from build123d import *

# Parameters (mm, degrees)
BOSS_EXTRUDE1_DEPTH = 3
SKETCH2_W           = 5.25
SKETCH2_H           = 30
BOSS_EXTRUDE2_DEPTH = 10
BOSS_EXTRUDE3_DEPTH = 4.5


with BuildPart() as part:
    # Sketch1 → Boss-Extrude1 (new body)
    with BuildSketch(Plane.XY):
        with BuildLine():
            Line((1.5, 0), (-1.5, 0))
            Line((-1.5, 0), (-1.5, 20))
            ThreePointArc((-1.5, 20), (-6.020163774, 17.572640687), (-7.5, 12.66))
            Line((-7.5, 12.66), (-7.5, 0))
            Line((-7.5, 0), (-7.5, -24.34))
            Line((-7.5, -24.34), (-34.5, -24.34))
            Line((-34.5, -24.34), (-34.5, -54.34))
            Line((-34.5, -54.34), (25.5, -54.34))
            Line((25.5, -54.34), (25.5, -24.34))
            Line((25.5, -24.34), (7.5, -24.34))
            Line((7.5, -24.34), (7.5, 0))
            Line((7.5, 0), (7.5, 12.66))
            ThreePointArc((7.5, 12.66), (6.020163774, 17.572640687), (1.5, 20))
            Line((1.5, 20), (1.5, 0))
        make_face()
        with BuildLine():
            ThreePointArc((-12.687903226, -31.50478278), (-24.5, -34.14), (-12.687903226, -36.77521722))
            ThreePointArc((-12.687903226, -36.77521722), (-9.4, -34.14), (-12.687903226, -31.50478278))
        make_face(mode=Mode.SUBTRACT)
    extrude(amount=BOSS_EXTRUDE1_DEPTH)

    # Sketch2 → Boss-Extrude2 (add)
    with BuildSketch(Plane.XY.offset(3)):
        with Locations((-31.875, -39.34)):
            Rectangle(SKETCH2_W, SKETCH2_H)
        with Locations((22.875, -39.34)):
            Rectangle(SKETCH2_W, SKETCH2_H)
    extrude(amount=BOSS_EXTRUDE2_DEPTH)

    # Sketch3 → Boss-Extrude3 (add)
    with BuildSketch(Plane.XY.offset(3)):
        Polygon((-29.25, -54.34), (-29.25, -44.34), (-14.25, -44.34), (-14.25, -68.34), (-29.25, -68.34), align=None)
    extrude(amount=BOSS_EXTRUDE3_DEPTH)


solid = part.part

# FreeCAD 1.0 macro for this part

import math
import FreeCAD as App
import Part
import Sketcher

V = App.Vector

doc = App.newDocument("Part")
body = doc.addObject("PartDesign::Body", "Body")

# Sketch on XY plane
sketch1 = doc.addObject("Sketcher::SketchObject", "Sketch")
body.addObject(sketch1)
sketch1.AttachmentSupport = (doc.XY_Plane, [""])
sketch1.MapMode = "FlatFace"
sketch1.addGeometry(Part.LineSegment(V(1.5, 0, 0), V(-1.5, 0, 0)), False)
sketch1.addGeometry(Part.LineSegment(V(-1.5, 0, 0), V(-1.5, 20, 0)), False)
sketch1.addGeometry(Part.ArcOfCircle(Part.Circle(V(-0.83, 13.33, 0), V(0, 0, 1), 6.703566), math.radians(95.736107), math.radians(185.736107)), False)
sketch1.addGeometry(Part.LineSegment(V(-7.5, 12.66, 0), V(-7.5, -24.34, 0)), False)
sketch1.addGeometry(Part.LineSegment(V(-7.5, -24.34, 0), V(-34.5, -24.34, 0)), False)
sketch1.addGeometry(Part.LineSegment(V(-34.5, -24.34, 0), V(-34.5, -54.34, 0)), False)
sketch1.addGeometry(Part.LineSegment(V(-34.5, -54.34, 0), V(25.5, -54.34, 0)), False)
sketch1.addGeometry(Part.LineSegment(V(25.5, -54.34, 0), V(25.5, -24.34, 0)), False)
sketch1.addGeometry(Part.LineSegment(V(25.5, -24.34, 0), V(7.5, -24.34, 0)), False)
sketch1.addGeometry(Part.LineSegment(V(7.5, -24.34, 0), V(7.5, 12.66, 0)), False)
sketch1.addGeometry(Part.ArcOfCircle(Part.Circle(V(0.83, 13.33, 0), V(0, 0, 1), 6.703566), math.radians(-5.736107), math.radians(84.263893)), False)
sketch1.addGeometry(Part.LineSegment(V(1.5, 20, 0), V(1.5, 0, 0)), False)
sketch1.addGeometry(Part.ArcOfCircle(Part.Circle(V(-18.3, -34.14, 0), V(0, 0, 1), 6.2), math.radians(25.152881), math.radians(334.847119)), False)
sketch1.addGeometry(Part.ArcOfCircle(Part.Circle(V(-12.1, -34.14, 0), V(0, 0, 1), 2.7), math.radians(-102.576441), math.radians(102.576441)), False)
sketch1.addConstraint(Sketcher.Constraint("Coincident", 0, 2, 1, 1))
sketch1.addConstraint(Sketcher.Constraint("Coincident", 1, 2, 2, 1))
sketch1.addConstraint(Sketcher.Constraint("Coincident", 2, 2, 3, 1))
sketch1.addConstraint(Sketcher.Constraint("Coincident", 3, 2, 4, 1))
sketch1.addConstraint(Sketcher.Constraint("Coincident", 4, 2, 5, 1))
sketch1.addConstraint(Sketcher.Constraint("Coincident", 5, 2, 6, 1))
sketch1.addConstraint(Sketcher.Constraint("Coincident", 6, 2, 7, 1))
sketch1.addConstraint(Sketcher.Constraint("Coincident", 7, 2, 8, 1))
sketch1.addConstraint(Sketcher.Constraint("Coincident", 8, 2, 9, 1))
sketch1.addConstraint(Sketcher.Constraint("Coincident", 9, 2, 10, 1))
sketch1.addConstraint(Sketcher.Constraint("Coincident", 10, 2, 11, 1))
sketch1.addConstraint(Sketcher.Constraint("Coincident", 11, 2, 0, 1))
sketch1.addConstraint(Sketcher.Constraint("Coincident", 12, 1, 13, 2))
sketch1.addConstraint(Sketcher.Constraint("Coincident", 13, 1, 12, 2))
sketch1.addConstraint(Sketcher.Constraint("Horizontal", 0))
sketch1.addConstraint(Sketcher.Constraint("Vertical", 1))
sketch1.addConstraint(Sketcher.Constraint("Vertical", 3))
sketch1.addConstraint(Sketcher.Constraint("Horizontal", 4))
sketch1.addConstraint(Sketcher.Constraint("Vertical", 5))
sketch1.addConstraint(Sketcher.Constraint("Horizontal", 6))
sketch1.addConstraint(Sketcher.Constraint("Vertical", 7))
sketch1.addConstraint(Sketcher.Constraint("Horizontal", 8))
sketch1.addConstraint(Sketcher.Constraint("Vertical", 9))
sketch1.addConstraint(Sketcher.Constraint("Vertical", 11))
sketch1.addConstraint(Sketcher.Constraint("Equal", 2, 10))
sketch1.addConstraint(Sketcher.Constraint("Symmetric", 0, 2, 11, 2, -1, 1))
sketch1.addConstraint(Sketcher.Constraint("Symmetric", 2, 3, 10, 3, -2))
sketch1.addConstraint(Sketcher.Constraint("Symmetric", 3, 2, 8, 2, -2))
sketch1.addConstraint(Sketcher.Constraint("Horizontal", 12, 3, 13, 3))
sketch1.addConstraint(Sketcher.Constraint("Radius", 12, 6.2))
sketch1.addConstraint(Sketcher.Constraint("Radius", 13, 2.7))
sketch1.addConstraint(Sketcher.Constraint("DistanceX", 0, 2, 0, 1, 3.0))
sketch1.addConstraint(Sketcher.Constraint("DistanceX", 4, 2, 4, 1, 27.0))
sketch1.addConstraint(Sketcher.Constraint("DistanceX", 6, 1, 6, 2, 60.0))
sketch1.addConstraint(Sketcher.Constraint("DistanceX", 8, 2, 8, 1, 18.0))
sketch1.addConstraint(Sketcher.Constraint("DistanceY", 1, 1, 1, 2, 20.0))
sketch1.addConstraint(Sketcher.Constraint("DistanceY", 3, 2, 3, 1, 37.0))
sketch1.addConstraint(Sketcher.Constraint("DistanceY", 5, 2, 5, 1, 30.0))
sketch1.addConstraint(Sketcher.Constraint("DistanceX", 12, 3, -1, 1, 18.3))
sketch1.addConstraint(Sketcher.Constraint("DistanceX", 13, 3, -1, 1, 12.1))
sketch1.addConstraint(Sketcher.Constraint("DistanceY", 13, 3, 2, 2, 46.8))
sketch1.addConstraint(Sketcher.Constraint("DistanceX", 2, 3, -1, 1, 0.83))
sketch1.addConstraint(Sketcher.Constraint("DistanceY", -1, 1, 2, 3, 13.33))
pad1 = doc.addObject("PartDesign::Pad", "Pad")
body.addObject(pad1)
pad1.Profile = sketch1
pad1.Length = 3

# Sketch on XY plane
sketch2 = doc.addObject("Sketcher::SketchObject", "Sketch001")
body.addObject(sketch2)
sketch2.AttachmentSupport = (doc.XY_Plane, [""])
sketch2.MapMode = "FlatFace"
sketch2.AttachmentOffset = App.Placement(V(0, 0, 3), App.Rotation())
sketch2.addGeometry(Part.LineSegment(V(-34.5, -24.34, 0), V(-34.5, -54.34, 0)), False)
sketch2.addGeometry(Part.LineSegment(V(-34.5, -54.34, 0), V(-29.25, -54.34, 0)), False)
sketch2.addGeometry(Part.LineSegment(V(-29.25, -54.34, 0), V(-29.25, -24.34, 0)), False)
sketch2.addGeometry(Part.LineSegment(V(-29.25, -24.34, 0), V(-34.5, -24.34, 0)), False)
sketch2.addGeometry(Part.LineSegment(V(20.25, -24.34, 0), V(20.25, -54.34, 0)), False)
sketch2.addGeometry(Part.LineSegment(V(20.25, -54.34, 0), V(25.5, -54.34, 0)), False)
sketch2.addGeometry(Part.LineSegment(V(25.5, -54.34, 0), V(25.5, -24.34, 0)), False)
sketch2.addGeometry(Part.LineSegment(V(25.5, -24.34, 0), V(20.25, -24.34, 0)), False)
sketch2.addConstraint(Sketcher.Constraint("Coincident", 0, 2, 1, 1))
sketch2.addConstraint(Sketcher.Constraint("Coincident", 1, 2, 2, 1))
sketch2.addConstraint(Sketcher.Constraint("Coincident", 2, 2, 3, 1))
sketch2.addConstraint(Sketcher.Constraint("Coincident", 3, 2, 0, 1))
sketch2.addConstraint(Sketcher.Constraint("Coincident", 4, 2, 5, 1))
sketch2.addConstraint(Sketcher.Constraint("Coincident", 5, 2, 6, 1))
sketch2.addConstraint(Sketcher.Constraint("Coincident", 6, 2, 7, 1))
sketch2.addConstraint(Sketcher.Constraint("Coincident", 7, 2, 4, 1))
sketch2.addConstraint(Sketcher.Constraint("Vertical", 0))
sketch2.addConstraint(Sketcher.Constraint("Horizontal", 1))
sketch2.addConstraint(Sketcher.Constraint("Vertical", 2))
sketch2.addConstraint(Sketcher.Constraint("Horizontal", 3))
sketch2.addConstraint(Sketcher.Constraint("Vertical", 4))
sketch2.addConstraint(Sketcher.Constraint("Horizontal", 5))
sketch2.addConstraint(Sketcher.Constraint("Vertical", 6))
sketch2.addConstraint(Sketcher.Constraint("Horizontal", 7))
sketch2.addConstraint(Sketcher.Constraint("Horizontal", 1, 2, 4, 2))
sketch2.addConstraint(Sketcher.Constraint("Horizontal", 3, 2, 6, 2))
sketch2.addConstraint(Sketcher.Constraint("Equal", 3, 5))
sketch2.addConstraint(Sketcher.Constraint("DistanceY", 0, 2, 0, 1, 30.0))
sketch2.addConstraint(Sketcher.Constraint("DistanceX", 0, 2, 5, 2, 60.0))
sketch2.addConstraint(Sketcher.Constraint("DistanceX", 1, 1, 1, 2, 5.25))
sketch2.addConstraint(Sketcher.Constraint("DistanceX", 0, 2, -1, 1, 34.5))
sketch2.addConstraint(Sketcher.Constraint("DistanceY", 0, 2, -1, 1, 54.34))
pad2 = doc.addObject("PartDesign::Pad", "Pad001")
body.addObject(pad2)
pad2.Profile = sketch2
pad2.Length = 10

# Sketch on XY plane
sketch3 = doc.addObject("Sketcher::SketchObject", "Sketch002")
body.addObject(sketch3)
sketch3.AttachmentSupport = (doc.XY_Plane, [""])
sketch3.MapMode = "FlatFace"
sketch3.AttachmentOffset = App.Placement(V(0, 0, 3), App.Rotation())
sketch3.addGeometry(Part.LineSegment(V(-29.25, -44.34, 0), V(-29.25, -68.34, 0)), False)
sketch3.addGeometry(Part.LineSegment(V(-29.25, -68.34, 0), V(-14.25, -68.34, 0)), False)
sketch3.addGeometry(Part.LineSegment(V(-14.25, -68.34, 0), V(-14.25, -44.34, 0)), False)
sketch3.addGeometry(Part.LineSegment(V(-14.25, -44.34, 0), V(-29.25, -44.34, 0)), False)
sketch3.addConstraint(Sketcher.Constraint("Coincident", 0, 2, 1, 1))
sketch3.addConstraint(Sketcher.Constraint("Coincident", 1, 2, 2, 1))
sketch3.addConstraint(Sketcher.Constraint("Coincident", 2, 2, 3, 1))
sketch3.addConstraint(Sketcher.Constraint("Coincident", 3, 2, 0, 1))
sketch3.addConstraint(Sketcher.Constraint("Vertical", 0))
sketch3.addConstraint(Sketcher.Constraint("Horizontal", 1))
sketch3.addConstraint(Sketcher.Constraint("Vertical", 2))
sketch3.addConstraint(Sketcher.Constraint("Horizontal", 3))
sketch3.addConstraint(Sketcher.Constraint("DistanceX", 1, 1, 1, 2, 15.0))
sketch3.addConstraint(Sketcher.Constraint("DistanceY", 0, 2, 0, 1, 24.0))
sketch3.addConstraint(Sketcher.Constraint("DistanceX", 0, 2, -1, 1, 29.25))
sketch3.addConstraint(Sketcher.Constraint("DistanceY", 0, 2, -1, 1, 68.34))
pad3 = doc.addObject("PartDesign::Pad", "Pad002")
body.addObject(pad3)
pad3.Profile = sketch3
pad3.Length = 4.5

doc.recompute()
